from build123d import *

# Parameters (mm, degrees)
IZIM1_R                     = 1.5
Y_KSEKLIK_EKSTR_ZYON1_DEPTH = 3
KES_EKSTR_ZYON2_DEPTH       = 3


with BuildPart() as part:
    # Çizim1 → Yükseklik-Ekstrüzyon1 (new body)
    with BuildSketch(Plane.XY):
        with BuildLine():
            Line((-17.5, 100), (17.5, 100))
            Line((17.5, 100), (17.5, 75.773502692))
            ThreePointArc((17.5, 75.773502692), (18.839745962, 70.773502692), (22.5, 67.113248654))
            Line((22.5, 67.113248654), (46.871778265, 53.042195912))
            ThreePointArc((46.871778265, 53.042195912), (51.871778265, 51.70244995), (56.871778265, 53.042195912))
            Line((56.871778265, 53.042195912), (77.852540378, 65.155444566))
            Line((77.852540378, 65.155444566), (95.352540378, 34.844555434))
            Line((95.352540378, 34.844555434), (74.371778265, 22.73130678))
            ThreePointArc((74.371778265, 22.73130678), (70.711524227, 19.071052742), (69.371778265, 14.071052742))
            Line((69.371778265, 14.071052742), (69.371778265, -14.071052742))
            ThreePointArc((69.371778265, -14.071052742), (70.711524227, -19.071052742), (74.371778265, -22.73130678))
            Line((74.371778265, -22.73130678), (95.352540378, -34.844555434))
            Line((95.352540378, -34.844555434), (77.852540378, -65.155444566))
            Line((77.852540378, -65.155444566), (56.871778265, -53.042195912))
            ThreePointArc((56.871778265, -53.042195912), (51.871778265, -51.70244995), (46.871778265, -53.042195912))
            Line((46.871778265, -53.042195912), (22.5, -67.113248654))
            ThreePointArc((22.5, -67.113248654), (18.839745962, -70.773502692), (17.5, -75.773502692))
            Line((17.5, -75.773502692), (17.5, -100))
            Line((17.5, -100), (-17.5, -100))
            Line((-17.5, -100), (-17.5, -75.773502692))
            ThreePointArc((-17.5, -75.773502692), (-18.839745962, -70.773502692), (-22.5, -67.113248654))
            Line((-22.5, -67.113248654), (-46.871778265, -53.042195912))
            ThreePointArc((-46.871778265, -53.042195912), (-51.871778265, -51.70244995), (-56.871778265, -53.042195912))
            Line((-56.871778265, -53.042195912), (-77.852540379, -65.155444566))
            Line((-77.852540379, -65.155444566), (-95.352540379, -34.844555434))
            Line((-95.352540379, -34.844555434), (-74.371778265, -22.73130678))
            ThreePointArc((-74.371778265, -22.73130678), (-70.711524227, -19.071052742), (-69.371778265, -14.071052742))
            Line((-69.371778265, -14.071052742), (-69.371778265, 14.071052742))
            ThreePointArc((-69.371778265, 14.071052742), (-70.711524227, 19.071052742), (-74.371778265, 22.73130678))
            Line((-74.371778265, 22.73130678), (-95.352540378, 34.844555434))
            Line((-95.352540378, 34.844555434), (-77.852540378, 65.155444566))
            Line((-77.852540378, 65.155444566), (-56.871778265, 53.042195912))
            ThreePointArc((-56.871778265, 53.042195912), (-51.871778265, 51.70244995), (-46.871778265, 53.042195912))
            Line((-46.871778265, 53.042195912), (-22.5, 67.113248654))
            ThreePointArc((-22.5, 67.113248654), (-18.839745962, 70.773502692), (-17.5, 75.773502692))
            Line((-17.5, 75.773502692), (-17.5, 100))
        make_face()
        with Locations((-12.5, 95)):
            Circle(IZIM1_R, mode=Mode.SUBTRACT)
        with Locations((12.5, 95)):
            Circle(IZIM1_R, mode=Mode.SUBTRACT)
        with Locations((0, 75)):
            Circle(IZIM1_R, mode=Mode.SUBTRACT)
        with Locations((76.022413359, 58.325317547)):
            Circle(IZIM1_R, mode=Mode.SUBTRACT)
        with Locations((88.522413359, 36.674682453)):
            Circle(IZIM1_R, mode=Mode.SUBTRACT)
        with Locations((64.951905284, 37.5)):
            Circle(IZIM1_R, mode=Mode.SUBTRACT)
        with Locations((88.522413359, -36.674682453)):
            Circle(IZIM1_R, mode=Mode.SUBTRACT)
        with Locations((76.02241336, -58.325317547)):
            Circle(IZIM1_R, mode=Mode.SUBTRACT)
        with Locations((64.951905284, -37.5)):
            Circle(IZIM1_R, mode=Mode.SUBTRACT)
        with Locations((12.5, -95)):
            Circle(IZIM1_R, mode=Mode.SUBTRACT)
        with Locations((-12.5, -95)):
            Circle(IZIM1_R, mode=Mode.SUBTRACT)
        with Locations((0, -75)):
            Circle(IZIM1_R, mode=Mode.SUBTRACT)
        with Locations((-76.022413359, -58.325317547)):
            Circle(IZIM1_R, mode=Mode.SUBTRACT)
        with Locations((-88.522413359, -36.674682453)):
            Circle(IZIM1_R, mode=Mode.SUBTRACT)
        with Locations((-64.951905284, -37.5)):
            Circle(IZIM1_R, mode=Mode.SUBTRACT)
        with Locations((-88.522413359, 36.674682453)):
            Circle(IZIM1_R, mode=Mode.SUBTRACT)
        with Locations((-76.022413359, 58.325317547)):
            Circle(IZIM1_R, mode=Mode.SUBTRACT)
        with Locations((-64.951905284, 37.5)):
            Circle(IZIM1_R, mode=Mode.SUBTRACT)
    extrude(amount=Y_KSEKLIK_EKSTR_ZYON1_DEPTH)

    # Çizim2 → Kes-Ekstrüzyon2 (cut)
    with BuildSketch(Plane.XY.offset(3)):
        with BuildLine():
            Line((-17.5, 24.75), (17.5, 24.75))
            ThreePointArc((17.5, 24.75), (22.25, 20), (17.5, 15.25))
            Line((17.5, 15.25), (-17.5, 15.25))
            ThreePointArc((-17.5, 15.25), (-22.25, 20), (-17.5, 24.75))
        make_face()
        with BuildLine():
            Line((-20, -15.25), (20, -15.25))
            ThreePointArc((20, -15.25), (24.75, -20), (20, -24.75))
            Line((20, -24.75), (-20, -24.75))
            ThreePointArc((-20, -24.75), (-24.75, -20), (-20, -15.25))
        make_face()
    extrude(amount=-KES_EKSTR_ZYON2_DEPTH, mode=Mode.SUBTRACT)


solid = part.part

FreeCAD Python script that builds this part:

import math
import FreeCAD as App
import Part
import Sketcher

V = App.Vector
Q = App.Units.Quantity

doc = App.newDocument("Part")
body = doc.addObject("PartDesign::Body", "Body")

# Sketch on XY plane
sketch1 = doc.addObject("Sketcher::SketchObject", "Sketch")
body.addObject(sketch1)
sketch1.AttachmentSupport = (doc.XY_Plane, [""])
sketch1.MapMode = "FlatFace"
sketch1.addGeometry(Part.LineSegment(V(17.5, 100, 0), V(-17.5, 100, 0)), False)
sketch1.addGeometry(Part.LineSegment(V(-17.5, 100, 0), V(-17.5, 75.8, 0)), False)
sketch1.addGeometry(Part.ArcOfCircle(Part.Circle(V(-27.5, 75.8, 0), V(0, 0, 1), 10), math.radians(-60), math.radians(0)), False)
sketch1.addGeometry(Part.LineSegment(V(-22.5, 67.1, 0), V(-46.9, 53, 0)), False)
sketch1.addGeometry(Part.ArcOfCircle(Part.Circle(V(-51.9, 61.7, 0), V(0, 0, 1), 10), math.radians(-120), math.radians(-60)), False)
sketch1.addGeometry(Part.LineSegment(V(-56.9, 53, 0), V(-77.9, 65.2, 0)), False)
sketch1.addGeometry(Part.LineSegment(V(-77.9, 65.2, 0), V(-95.4, 34.8, 0)), False)
sketch1.addGeometry(Part.LineSegment(V(-95.4, 34.8, 0), V(-74.4, 22.7, 0)), False)
sketch1.addGeometry(Part.ArcOfCircle(Part.Circle(V(-79.4, 14.1, 0), V(0, 0, 1), 10), math.radians(0), math.radians(60)), False)
sketch1.addGeometry(Part.LineSegment(V(-69.4, 14.1, 0), V(-69.4, -14.1, 0)), False)
sketch1.addGeometry(Part.ArcOfCircle(Part.Circle(V(-79.4, -14.1, 0), V(0, 0, 1), 10), math.radians(-60), math.radians(0)), False)
sketch1.addGeometry(Part.LineSegment(V(-74.4, -22.7, 0), V(-95.4, -34.8, 0)), False)
sketch1.addGeometry(Part.LineSegment(V(-95.4, -34.8, 0), V(-77.9, -65.2, 0)), False)
sketch1.addGeometry(Part.LineSegment(V(-77.9, -65.2, 0), V(-56.9, -53, 0)), False)
sketch1.addGeometry(Part.ArcOfCircle(Part.Circle(V(-51.9, -61.7, 0), V(0, 0, 1), 10), math.radians(60), math.radians(120)), False)
sketch1.addGeometry(Part.LineSegment(V(-46.9, -53, 0), V(-22.5, -67.1, 0)), False)
sketch1.addGeometry(Part.ArcOfCircle(Part.Circle(V(-27.5, -75.8, 0), V(0, 0, 1), 10), math.radians(0), math.radians(60)), False)
sketch1.addGeometry(Part.LineSegment(V(-17.5, -75.8, 0), V(-17.5, -100, 0)), False)
sketch1.addGeometry(Part.LineSegment(V(-17.5, -100, 0), V(17.5, -100, 0)), False)
sketch1.addGeometry(Part.LineSegment(V(17.5, -100, 0), V(17.5, -75.8, 0)), False)
sketch1.addGeometry(Part.ArcOfCircle(Part.Circle(V(27.5, -75.8, 0), V(0, 0, 1), 10), math.radians(120), math.radians(180)), False)
sketch1.addGeometry(Part.LineSegment(V(22.5, -67.1, 0), V(46.9, -53, 0)), False)
sketch1.addGeometry(Part.ArcOfCircle(Part.Circle(V(51.9, -61.7, 0), V(0, 0, 1), 10), math.radians(60), math.radians(120)), False)
sketch1.addGeometry(Part.LineSegment(V(56.9, -53, 0), V(77.9, -65.2, 0)), False)
sketch1.addGeometry(Part.LineSegment(V(77.9, -65.2, 0), V(95.4, -34.8, 0)), False)
sketch1.addGeometry(Part.LineSegment(V(95.4, -34.8, 0), V(74.4, -22.7, 0)), False)
sketch1.addGeometry(Part.ArcOfCircle(Part.Circle(V(79.4, -14.1, 0), V(0, 0, 1), 10), math.radians(180), math.radians(240)), False)
sketch1.addGeometry(Part.LineSegment(V(69.4, -14.1, 0), V(69.4, 14.1, 0)), False)
sketch1.addGeometry(Part.ArcOfCircle(Part.Circle(V(79.4, 14.1, 0), V(0, 0, 1), 10), math.radians(120), math.radians(180)), False)
sketch1.addGeometry(Part.LineSegment(V(74.4, 22.7, 0), V(95.4, 34.8, 0)), False)
sketch1.addGeometry(Part.LineSegment(V(95.4, 34.8, 0), V(77.9, 65.2, 0)), False)
sketch1.addGeometry(Part.LineSegment(V(77.9, 65.2, 0), V(56.9, 53, 0)), False)
sketch1.addGeometry(Part.ArcOfCircle(Part.Circle(V(51.9, 61.7, 0), V(0, 0, 1), 10), math.radians(-120), math.radians(-60)), False)
sketch1.addGeometry(Part.LineSegment(V(46.9, 53, 0), V(22.5, 67.1, 0)), False)
sketch1.addGeometry(Part.ArcOfCircle(Part.Circle(V(27.5, 75.8, 0), V(0, 0, 1), 10), math.radians(180), math.radians(240)), False)
sketch1.addGeometry(Part.LineSegment(V(17.5, 75.8, 0), V(17.5, 100, 0)), False)
sketch1.addGeometry(Part.Circle(V(76, -58.3, 0), V(0, 0, 1), 1.5), False)
sketch1.addGeometry(Part.Circle(V(12.5, -95, 0), V(0, 0, 1), 1.5), False)
sketch1.addGeometry(Part.Circle(V(88.5, -36.7, 0), V(0, 0, 1), 1.5), False)
sketch1.addGeometry(Part.Circle(V(65, -37.5, 0), V(0, 0, 1), 1.5), False)
sketch1.addGeometry(Part.Circle(V(-12.5, -95, 0), V(0, 0, 1), 1.5), False)
sketch1.addGeometry(Part.Circle(V(0, -75, 0), V(0, 0, 1), 1.5), False)
sketch1.addGeometry(Part.Circle(V(-76, -58.3, 0), V(0, 0, 1), 1.5), False)
sketch1.addGeometry(Part.Circle(V(-65, -37.5, 0), V(0, 0, 1), 1.5), False)
sketch1.addGeometry(Part.Circle(V(-88.5, -36.7, 0), V(0, 0, 1), 1.5), False)
sketch1.addGeometry(Part.Circle(V(88.5, 36.7, 0), V(0, 0, 1), 1.5), False)
sketch1.addGeometry(Part.Circle(V(65, 37.5, 0), V(0, 0, 1), 1.5), False)
sketch1.addGeometry(Part.Circle(V(76, 58.3, 0), V(0, 0, 1), 1.5), False)
sketch1.addGeometry(Part.Circle(V(12.5, 95, 0), V(0, 0, 1), 1.5), False)
sketch1.addGeometry(Part.Circle(V(-65, 37.5, 0), V(0, 0, 1), 1.5), False)
sketch1.addGeometry(Part.Circle(V(-88.5, 36.7, 0), V(0, 0, 1), 1.5), False)
sketch1.addGeometry(Part.Circle(V(0, 75, 0), V(0, 0, 1), 1.5), False)
sketch1.addGeometry(Part.Circle(V(-12.5, 95, 0), V(0, 0, 1), 1.5), False)
sketch1.addGeometry(Part.Circle(V(-76, 58.3, 0), V(0, 0, 1), 1.5), False)
sketch1.addConstraint(Sketcher.Constraint("Coincident", 0, 2, 1, 1))
sketch1.addConstraint(Sketcher.Constraint("Tangent", 1, 2, 2, 2))
sketch1.addConstraint(Sketcher.Constraint("Tangent", 2, 1, 3, 1))
sketch1.addConstraint(Sketcher.Constraint("Tangent", 3, 2, 4, 2))
sketch1.addConstraint(Sketcher.Constraint("Tangent", 4, 1, 5, 1))
sketch1.addConstraint(Sketcher.Constraint("Coincident", 5, 2, 6, 1))
sketch1.addConstraint(Sketcher.Constraint("Coincident", 6, 2, 7, 1))
sketch1.addConstraint(Sketcher.Constraint("Tangent", 7, 2, 8, 2))
sketch1.addConstraint(Sketcher.Constraint("Tangent", 8, 1, 9, 1))
sketch1.addConstraint(Sketcher.Constraint("Tangent", 9, 2, 10, 2))
sketch1.addConstraint(Sketcher.Constraint("Tangent", 10, 1, 11, 1))
sketch1.addConstraint(Sketcher.Constraint("Coincident", 11, 2, 12, 1))
sketch1.addConstraint(Sketcher.Constraint("Coincident", 12, 2, 13, 1))
sketch1.addConstraint(Sketcher.Constraint("Tangent", 13, 2, 14, 2))
sketch1.addConstraint(Sketcher.Constraint("Tangent", 14, 1, 15, 1))
sketch1.addConstraint(Sketcher.Constraint("Tangent", 15, 2, 16, 2))
sketch1.addConstraint(Sketcher.Constraint("Tangent", 16, 1, 17, 1))
sketch1.addConstraint(Sketcher.Constraint("Coincident", 17, 2, 18, 1))
sketch1.addConstraint(Sketcher.Constraint("Coincident", 18, 2, 19, 1))
sketch1.addConstraint(Sketcher.Constraint("Tangent", 19, 2, 20, 2))
sketch1.addConstraint(Sketcher.Constraint("Tangent", 20, 1, 21, 1))
sketch1.addConstraint(Sketcher.Constraint("Tangent", 21, 2, 22, 2))
sketch1.addConstraint(Sketcher.Constraint("Tangent", 22, 1, 23, 1))
sketch1.addConstraint(Sketcher.Constraint("Coincident", 23, 2, 24, 1))
sketch1.addConstraint(Sketcher.Constraint("Coincident", 24, 2, 25, 1))
sketch1.addConstraint(Sketcher.Constraint("Tangent", 25, 2, 26, 2))
sketch1.addConstraint(Sketcher.Constraint("Tangent", 26, 1, 27, 1))
sketch1.addConstraint(Sketcher.Constraint("Tangent", 27, 2, 28, 2))
sketch1.addConstraint(Sketcher.Constraint("Tangent", 28, 1, 29, 1))
sketch1.addConstraint(Sketcher.Constraint("Coincident", 29, 2, 30, 1))
sketch1.addConstraint(Sketcher.Constraint("Coincident", 30, 2, 31, 1))
sketch1.addConstraint(Sketcher.Constraint("Tangent", 31, 2, 32, 2))
sketch1.addConstraint(Sketcher.Constraint("Tangent", 32, 1, 33, 1))
sketch1.addConstraint(Sketcher.Constraint("Tangent", 33, 2, 34, 2))
sketch1.addConstraint(Sketcher.Constraint("Tangent", 34, 1, 35, 1))
sketch1.addConstraint(Sketcher.Constraint("Coincident", 35, 2, 0, 1))
sketch1.addConstraint(Sketcher.Constraint("Horizontal", 0))
sketch1.addConstraint(Sketcher.Constraint("Vertical", 1))
sketch1.addConstraint(Sketcher.Constraint("Vertical", 9))
sketch1.addConstraint(Sketcher.Constraint("Vertical", 17))
sketch1.addConstraint(Sketcher.Constraint("Horizontal", 18))
sketch1.addConstraint(Sketcher.Constraint("Vertical", 19))
sketch1.addConstraint(Sketcher.Constraint("Vertical", 27))
sketch1.addConstraint(Sketcher.Constraint("Vertical", 35))
sketch1.addConstraint(Sketcher.Constraint("Equal", 2, 4))
sketch1.addConstraint(Sketcher.Constraint("Equal", 4, 8))
sketch1.addConstraint(Sketcher.Constraint("Equal", 8, 10))
sketch1.addConstraint(Sketcher.Constraint("Equal", 10, 14))
sketch1.addConstraint(Sketcher.Constraint("Equal", 14, 16))
sketch1.addConstraint(Sketcher.Constraint("Equal", 16, 20))
sketch1.addConstraint(Sketcher.Constraint("Equal", 20, 22))
sketch1.addConstraint(Sketcher.Constraint("Equal", 22, 26))
sketch1.addConstraint(Sketcher.Constraint("Equal", 26, 28))
sketch1.addConstraint(Sketcher.Constraint("Equal", 28, 32))
sketch1.addConstraint(Sketcher.Constraint("Equal", 32, 34))
sketch1.addConstraint(Sketcher.Constraint("Equal", 36, 37))
sketch1.addConstraint(Sketcher.Constraint("Equal", 37, 38))
sketch1.addConstraint(Sketcher.Constraint("Equal", 38, 39))
sketch1.addConstraint(Sketcher.Constraint("Equal", 39, 40))
sketch1.addConstraint(Sketcher.Constraint("Equal", 40, 41))
sketch1.addConstraint(Sketcher.Constraint("Equal", 41, 42))
sketch1.addConstraint(Sketcher.Constraint("Equal", 42, 43))
sketch1.addConstraint(Sketcher.Constraint("Equal", 43, 44))
sketch1.addConstraint(Sketcher.Constraint("Equal", 44, 45))
sketch1.addConstraint(Sketcher.Constraint("Equal", 45, 46))
sketch1.addConstraint(Sketcher.Constraint("Equal", 46, 47))
sketch1.addConstraint(Sketcher.Constraint("Equal", 47, 48))
sketch1.addConstraint(Sketcher.Constraint("Equal", 48, 49))
sketch1.addConstraint(Sketcher.Constraint("Equal", 49, 50))
sketch1.addConstraint(Sketcher.Constraint("Equal", 50, 51))
sketch1.addConstraint(Sketcher.Constraint("Equal", 51, 52))
sketch1.addConstraint(Sketcher.Constraint("Equal", 52, 53))
sketch1.addConstraint(Sketcher.Constraint("Symmetric", 2, 3, 20, 3, -1, 1))
sketch1.addConstraint(Sketcher.Constraint("Symmetric", 4, 3, 22, 3, -1, 1))
sketch1.addConstraint(Sketcher.Constraint("Symmetric", 8, 3, 26, 3, -1, 1))
sketch1.addConstraint(Sketcher.Constraint("Symmetric", 14, 3, 32, 3, -1, 1))
sketch1.addConstraint(Sketcher.Constraint("Symmetric", 16, 3, 34, 3, -1, 1))
sketch1.addConstraint(Sketcher.Constraint("Symmetric", 44, 3, 45, 3, -1, 1))
sketch1.addConstraint(Sketcher.Constraint("Symmetric", 43, 3, 46, 3, -1, 1))
sketch1.addConstraint(Sketcher.Constraint("Symmetric", 42, 3, 47, 3, -1, 1))
sketch1.addConstraint(Sketcher.Constraint("Symmetric", 40, 3, 48, 3, -1, 1))
sketch1.addConstraint(Sketcher.Constraint("Symmetric", 39, 3, 49, 3, -1, 1))
sketch1.addConstraint(Sketcher.Constraint("Symmetric", 38, 3, 50, 3, -1, 1))
sketch1.addConstraint(Sketcher.Constraint("Symmetric", 41, 3, 51, 3, -1, 1))
sketch1.addConstraint(Sketcher.Constraint("Symmetric", 37, 3, 52, 3, -1, 1))
sketch1.addConstraint(Sketcher.Constraint("Symmetric", 36, 3, 53, 3, -1, 1))
sketch1.addConstraint(Sketcher.Constraint("Symmetric", 5, 2, 23, 2, -1, 1))
sketch1.addConstraint(Sketcher.Constraint("Symmetric", 6, 2, 24, 2, -1, 1))
sketch1.addConstraint(Sketcher.Constraint("Symmetric", 10, 1, 28, 1, -1, 1))
sketch1.addConstraint(Sketcher.Constraint("Symmetric", 12, 2, 30, 2, -1, 1))
sketch1.addConstraint(Sketcher.Constraint("Symmetric", 16, 3, 20, 3, -2))
sketch1.addConstraint(Sketcher.Constraint("Symmetric", 14, 3, 22, 3, -2))
sketch1.addConstraint(Sketcher.Constraint("Symmetric", 37, 3, 40, 3, -2))
sketch1.addConstraint(Sketcher.Constraint("Symmetric", 36, 3, 42, 3, -2))
sketch1.addConstraint(Sketcher.Constraint("Symmetric", 39, 3, 43, 3, -2))
sketch1.addConstraint(Sketcher.Constraint("Symmetric", 38, 3, 44, 3, -2))
sketch1.addConstraint(Sketcher.Constraint("Symmetric", 12, 2, 23, 2, -2))
sketch1.addConstraint(Sketcher.Constraint("Symmetric", 11, 2, 24, 2, -2))
sketch1.addConstraint(Sketcher.Constraint("PointOnObject", 41, 3, -2))
sketch1.addConstraint(Sketcher.Constraint("Perpendicular", 5, 6))
sketch1.addConstraint(Sketcher.Constraint("Perpendicular", 6, 7))
sketch1.addConstraint(Sketcher.Constraint("Parallel", 3, 11))
sketch1.addConstraint(Sketcher.Constraint("Perpendicular", 11, 12))
sketch1.addConstraint(Sketcher.Constraint("Perpendicular", 29, 30))
sketch1.addConstraint(Sketcher.Constraint("Equal", 1, 17))
sketch1.addConstraint(Sketcher.Constraint("Equal", 5, 7))
sketch1.addConstraint(Sketcher.Constraint("Diameter", 36, 3.0))
sketch1.addConstraint(Sketcher.Constraint("Radius", 2, 10.0))
sketch1.addConstraint(Sketcher.Constraint("DistanceX", 0, 2, 0, 1, 35.0))
sketch1.addConstraint(Sketcher.Constraint("Angle", 3, Q("-150 deg")))
sketch1.addConstraint(Sketcher.Constraint("Distance", 6, 35.0))
sketch1.addConstraint(Sketcher.Constraint("DistanceY", 37, 3, -1, 1, 95.0))
sketch1.addConstraint(Sketcher.Constraint("DistanceY", 41, 3, -1, 1, 75.0))
sketch1.addConstraint(Sketcher.Constraint("DistanceY", -1, 1, 0, 2, 100.0))
sketch1.addConstraint(Sketcher.Constraint("DistanceX", -1, 1, 37, 3, 12.5))
sketch1.addConstraint(Sketcher.Constraint("DistanceY", 39, 3, -1, 1, 37.5))
sketch1.addConstraint(Sketcher.Constraint("DistanceY", 1, 2, 1, 1, 24.226497))
sketch1.addConstraint(Sketcher.Constraint("DistanceY", 9, 2, 9, 1, 28.142105))
sketch1.addConstraint(Sketcher.Constraint("DistanceX", 5, 2, -1, 1, 77.85254))
sketch1.addConstraint(Sketcher.Constraint("DistanceX", -1, 1, 36, 3, 76.022413))
sketch1.addConstraint(Sketcher.Constraint("DistanceY", 36, 3, -1, 1, 58.325318))
sketch1.addConstraint(Sketcher.Constraint("DistanceX", -1, 1, 38, 3, 88.522413))
sketch1.addConstraint(Sketcher.Constraint("DistanceY", 38, 3, -1, 1, 36.674682))
sketch1.addConstraint(Sketcher.Constraint("DistanceX", -1, 1, 39, 3, 64.951905))
pad1 = doc.addObject("PartDesign::Pad", "Pad")
body.addObject(pad1)
pad1.Profile = sketch1
pad1.Length = 3

# Sketch on XY plane
sketch2 = doc.addObject("Sketcher::SketchObject", "Sketch001")
body.addObject(sketch2)
sketch2.AttachmentSupport = (doc.XY_Plane, [""])
sketch2.MapMode = "FlatFace"
sketch2.AttachmentOffset = App.Placement(V(0, 0, 3), App.Rotation())
sketch2.addGeometry(Part.LineSegment(V(17.5, 24.8, 0), V(-17.5, 24.8, 0)), False)
sketch2.addGeometry(Part.ArcOfCircle(Part.Circle(V(-17.5, 20, 0), V(0, 0, 1), 4.8), math.radians(90), math.radians(270)), False)
sketch2.addGeometry(Part.LineSegment(V(-17.5, 15.2, 0), V(17.5, 15.2, 0)), False)
sketch2.addGeometry(Part.ArcOfCircle(Part.Circle(V(17.5, 20, 0), V(0, 0, 1), 4.8), math.radians(-90), math.radians(90)), False)
sketch2.addGeometry(Part.LineSegment(V(20, -15.2, 0), V(-20, -15.2, 0)), False)
sketch2.addGeometry(Part.ArcOfCircle(Part.Circle(V(-20, -20, 0), V(0, 0, 1), 4.8), math.radians(90), math.radians(270)), False)
sketch2.addGeometry(Part.LineSegment(V(-20, -24.8, 0), V(20, -24.8, 0)), False)
sketch2.addGeometry(Part.ArcOfCircle(Part.Circle(V(20, -20, 0), V(0, 0, 1), 4.8), math.radians(-90), math.radians(90)), False)
sketch2.addConstraint(Sketcher.Constraint("Tangent", 0, 2, 1, 1))
sketch2.addConstraint(Sketcher.Constraint("Tangent", 1, 2, 2, 1))
sketch2.addConstraint(Sketcher.Constraint("Tangent", 2, 2, 3, 1))
sketch2.addConstraint(Sketcher.Constraint("Tangent", 3, 2, 0, 1))
sketch2.addConstraint(Sketcher.Constraint("Tangent", 4, 2, 5, 1))
sketch2.addConstraint(Sketcher.Constraint("Tangent", 5, 2, 6, 1))
sketch2.addConstraint(Sketcher.Constraint("Tangent", 6, 2, 7, 1))
sketch2.addConstraint(Sketcher.Constraint("Tangent", 7, 2, 4, 1))
sketch2.addConstraint(Sketcher.Constraint("Horizontal", 0))
sketch2.addConstraint(Sketcher.Constraint("Horizontal", 2))
sketch2.addConstraint(Sketcher.Constraint("Horizontal", 4))
sketch2.addConstraint(Sketcher.Constraint("Horizontal", 6))
sketch2.addConstraint(Sketcher.Constraint("Equal", 3, 5))
sketch2.addConstraint(Sketcher.Constraint("DistanceX", 0, 2, 0, 1, 35.0))
sketch2.addConstraint(Sketcher.Constraint("DistanceX", 4, 2, 4, 1, 40.0))
sketch2.addConstraint(Sketcher.Constraint("Radius", 1, 4.75))
sketch2.addConstraint(Sketcher.Constraint("DistanceY", -1, 1, 1, 3, 20.0))
sketch2.addConstraint(Sketcher.Constraint("DistanceX", 5, 3, -1, 1, 20.0))
sketch2.addConstraint(Sketcher.Constraint("DistanceY", 5, 3, -1, 1, 20.0))
sketch2.addConstraint(Sketcher.Constraint("DistanceX", 1, 3, -1, 1, 17.5))
pocket1 = doc.addObject("PartDesign::Pocket", "Pocket")
body.addObject(pocket1)
pocket1.Profile = sketch2
pocket1.Length = 3

doc.recompute()
